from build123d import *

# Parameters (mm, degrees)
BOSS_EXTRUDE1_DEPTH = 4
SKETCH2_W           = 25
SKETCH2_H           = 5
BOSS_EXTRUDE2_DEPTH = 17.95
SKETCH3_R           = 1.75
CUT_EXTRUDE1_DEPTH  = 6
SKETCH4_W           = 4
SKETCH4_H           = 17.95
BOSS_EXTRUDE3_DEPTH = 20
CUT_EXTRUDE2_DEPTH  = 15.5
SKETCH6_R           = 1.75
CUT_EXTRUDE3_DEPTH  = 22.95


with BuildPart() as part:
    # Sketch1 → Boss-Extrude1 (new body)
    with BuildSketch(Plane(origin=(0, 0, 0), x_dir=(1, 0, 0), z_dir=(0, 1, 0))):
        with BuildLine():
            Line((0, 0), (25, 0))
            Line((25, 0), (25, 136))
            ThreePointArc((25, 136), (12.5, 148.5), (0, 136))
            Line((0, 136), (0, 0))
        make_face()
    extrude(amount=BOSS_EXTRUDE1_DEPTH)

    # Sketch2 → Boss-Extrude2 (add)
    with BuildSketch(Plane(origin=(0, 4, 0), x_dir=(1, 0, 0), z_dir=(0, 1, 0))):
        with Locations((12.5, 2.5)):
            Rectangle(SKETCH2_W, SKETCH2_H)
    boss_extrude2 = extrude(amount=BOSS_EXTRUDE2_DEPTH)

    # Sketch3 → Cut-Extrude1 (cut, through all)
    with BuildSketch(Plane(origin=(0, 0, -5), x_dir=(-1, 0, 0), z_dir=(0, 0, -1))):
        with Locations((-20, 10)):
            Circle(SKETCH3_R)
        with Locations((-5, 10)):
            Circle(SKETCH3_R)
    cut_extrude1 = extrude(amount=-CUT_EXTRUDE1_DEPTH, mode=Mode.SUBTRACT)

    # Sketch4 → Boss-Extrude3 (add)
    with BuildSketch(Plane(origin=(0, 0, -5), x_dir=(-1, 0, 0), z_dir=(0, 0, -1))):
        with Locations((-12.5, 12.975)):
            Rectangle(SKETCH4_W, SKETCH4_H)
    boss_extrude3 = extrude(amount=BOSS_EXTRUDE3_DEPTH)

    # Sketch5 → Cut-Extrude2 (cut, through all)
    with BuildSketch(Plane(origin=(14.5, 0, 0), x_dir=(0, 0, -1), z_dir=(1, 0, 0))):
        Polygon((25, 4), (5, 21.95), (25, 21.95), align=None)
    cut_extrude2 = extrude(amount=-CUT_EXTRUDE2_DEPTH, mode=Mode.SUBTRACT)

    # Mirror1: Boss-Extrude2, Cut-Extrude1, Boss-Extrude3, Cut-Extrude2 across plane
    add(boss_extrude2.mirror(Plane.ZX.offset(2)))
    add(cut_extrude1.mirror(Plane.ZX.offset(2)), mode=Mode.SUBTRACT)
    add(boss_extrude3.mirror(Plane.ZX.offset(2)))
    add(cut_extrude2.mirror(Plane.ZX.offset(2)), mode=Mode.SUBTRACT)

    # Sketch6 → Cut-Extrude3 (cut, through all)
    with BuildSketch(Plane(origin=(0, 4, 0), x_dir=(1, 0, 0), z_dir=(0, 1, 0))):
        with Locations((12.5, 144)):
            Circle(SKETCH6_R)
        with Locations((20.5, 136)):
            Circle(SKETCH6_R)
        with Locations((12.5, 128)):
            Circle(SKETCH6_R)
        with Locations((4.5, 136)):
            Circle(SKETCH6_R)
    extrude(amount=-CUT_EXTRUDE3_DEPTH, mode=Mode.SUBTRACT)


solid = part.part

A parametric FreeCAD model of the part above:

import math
import FreeCAD as App
import Part
import Sketcher

V = App.Vector
Q = App.Units.Quantity


def add_polygon(sketch, points):
    """Adds a closed chain of lines whose ends are joined by coincident constraints."""
    first, n = sketch.GeometryCount, len(points)
    for a, b in zip(points, points[1:] + points[:1]):
        sketch.addGeometry(Part.LineSegment(App.Vector(*a, 0), App.Vector(*b, 0)), False)
    for i in range(n):
        sketch.addConstraint(Sketcher.Constraint("Coincident", first + i, 2, first + (i + 1) % n, 1))

doc = App.newDocument("Part")
body = doc.addObject("PartDesign::Body", "Body")

# Sketch on XZ plane
sketch1 = body.newObject("Sketcher::SketchObject", "Sketch")
sketch1.AttachmentSupport = (doc.getObject("XZ_Plane"), [""])
sketch1.MapMode = "FlatFace"
sketch1.addGeometry([
    Part.LineSegment(V(0, 0, 0), V(25, 0, 0)),
    Part.LineSegment(V(25, 0, 0), V(25, -136, 0)),
    Part.ArcOfCircle(Part.Circle(V(12, -136, 0), V(0, 0, 1), 12), math.radians(180), math.radians(360)),
    Part.LineSegment(V(0, -136, 0), V(0, 0, 0)),
], False)
sketch1.addConstraint([
    Sketcher.Constraint("Coincident", 0, 2, 1, 1),
    Sketcher.Constraint("Tangent", 1, 2, 2, 2),
    Sketcher.Constraint("Tangent", 2, 1, 3, 1),
    Sketcher.Constraint("Coincident", 3, 2, 0, 1),
    Sketcher.Constraint("Horizontal", 0),
    Sketcher.Constraint("Vertical", 1),
    Sketcher.Constraint("Vertical", 3),
    Sketcher.Constraint("Coincident", 3, 2, -1, 1),
    Sketcher.Constraint("Radius", 2, Q("12.5 mm")),
    Sketcher.Constraint("DistanceY", 1, 2, 1, 1, Q("136 mm")),
])
pad1 = body.newObject("PartDesign::Pad", "Pad")
pad1.Profile = sketch1
pad1.Length = 4
pad1.Reversed = True

# Sketch on XZ plane
sketch2 = body.newObject("Sketcher::SketchObject", "Sketch001")
sketch2.AttachmentSupport = (doc.getObject("XZ_Plane"), [""])
sketch2.MapMode = "FlatFace"
sketch2.AttachmentOffset = App.Placement(V(0, 0, -4), App.Rotation())
add_polygon(sketch2, [(0, -5), (0, 0), (25, 0), (25, -5)])  # lines 0-3
sketch2.addConstraint([
    Sketcher.Constraint("Vertical", 0),
    Sketcher.Constraint("Horizontal", 1),
    Sketcher.Constraint("Vertical", 2),
    Sketcher.Constraint("Horizontal", 3),
    Sketcher.Constraint("Coincident", 0, 2, -1, 1),
    Sketcher.Constraint("DistanceX", 1, 1, 1, 2, Q("25 mm")),
    Sketcher.Constraint("DistanceY", 0, 1, 0, 2, Q("5 mm")),
])
pad2 = body.newObject("PartDesign::Pad", "Pad001")
pad2.Profile = sketch2
pad2.Length = 17.95
pad2.Reversed = True

# Sketch on XY plane
sketch3 = body.newObject("Sketcher::SketchObject", "Sketch002")
sketch3.AttachmentSupport = (doc.getObject("XY_Plane"), [""])
sketch3.MapMode = "FlatFace"
sketch3.AttachmentOffset = App.Placement(V(0, 0, -5), App.Rotation())
sketch3.addGeometry([
    Part.Circle(V(20, 10, 0), V(0, 0, 1), 1.8),
    Part.Circle(V(5, 10, 0), V(0, 0, 1), 1.8),
], False)
sketch3.addConstraint([
    Sketcher.Constraint("Equal", 0, 1),
    Sketcher.Constraint("Horizontal", 0, 3, 1, 3),
    Sketcher.Constraint("Diameter", 0, Q("3.5 mm")),
    Sketcher.Constraint("DistanceX", -1, 1, 0, 3, Q("20 mm")),
    Sketcher.Constraint("DistanceY", -1, 1, 0, 3, Q("10 mm")),
    Sketcher.Constraint("DistanceX", -1, 1, 1, 3, Q("5 mm")),
])
pocket1 = body.newObject("PartDesign::Pocket", "Pocket")
pocket1.Profile = sketch3
pocket1.Type = "ThroughAll"
pocket1.Reversed = True

# Sketch on XY plane
sketch4 = body.newObject("Sketcher::SketchObject", "Sketch003")
sketch4.AttachmentSupport = (doc.getObject("XY_Plane"), [""])
sketch4.MapMode = "FlatFace"
sketch4.AttachmentOffset = App.Placement(V(0, 0, -5), App.Rotation())
add_polygon(sketch4, [(14.5, 21.9), (14.5, 4), (10.5, 4), (10.5, 21.9)])  # lines 0-3
sketch4.addConstraint([
    Sketcher.Constraint("Vertical", 0),
    Sketcher.Constraint("Horizontal", 1),
    Sketcher.Constraint("Vertical", 2),
    Sketcher.Constraint("Horizontal", 3),
    Sketcher.Constraint("DistanceX", 1, 2, 1, 1, Q("4 mm")),
    Sketcher.Constraint("DistanceY", -1, 1, 0, 2, Q("4 mm")),
    Sketcher.Constraint("DistanceY", 0, 2, 0, 1, Q("17.95 mm")),
    Sketcher.Constraint("DistanceX", -1, 1, 0, 2, Q("14.5 mm")),
])
pad3 = body.newObject("PartDesign::Pad", "Pad002")
pad3.Profile = sketch4
pad3.Length = 20
pad3.Reversed = True

# Sketch on YZ plane
sketch5 = body.newObject("Sketcher::SketchObject", "Sketch004")
sketch5.AttachmentSupport = (doc.getObject("YZ_Plane"), [""])
sketch5.MapMode = "FlatFace"
sketch5.AttachmentOffset = App.Placement(V(0, 0, 14.5), App.Rotation())
add_polygon(sketch5, [(22, -5), (4, -25), (22, -25)])  # lines 0-2
sketch5.addConstraint([
    Sketcher.Constraint("Horizontal", 1),
    Sketcher.Constraint("Vertical", 2),
    Sketcher.Constraint("DistanceY", 2, 1, 2, 2, Q("20 mm")),
    Sketcher.Constraint("DistanceX", -1, 1, 0, 2, Q("4 mm")),
    Sketcher.Constraint("DistanceY", 0, 2, -1, 1, Q("25 mm")),
    Sketcher.Constraint("DistanceX", 1, 1, 1, 2, Q("17.95 mm")),
])
pocket2 = body.newObject("PartDesign::Pocket", "Pocket001")
pocket2.Profile = sketch5
pocket2.Type = "ThroughAll"
doc.recompute()

datumplane = body.newObject("PartDesign::Plane", "DatumPlane")
datumplane.AttachmentSupport = (doc.getObject("XZ_Plane"), [""])
datumplane.MapMode = "FlatFace"
datumplane.AttachmentOffset = App.Placement(V(0, 0, -2), App.Rotation())
mirrored = body.newObject("PartDesign::Mirrored", "Mirrored")
mirrored.Originals = [pad2, pocket1, pad3, pocket2]
mirrored.MirrorPlane = (datumplane, [""])
body.Tip = mirrored

# Sketch on XZ plane
sketch6 = body.newObject("Sketcher::SketchObject", "Sketch005")
sketch6.AttachmentSupport = (doc.getObject("XZ_Plane"), [""])
sketch6.MapMode = "FlatFace"
sketch6.AttachmentOffset = App.Placement(V(0, 0, -4), App.Rotation())
sketch6.addGeometry([
    Part.Circle(V(12.5, -144, 0), V(0, 0, 1), 1.8),
    Part.Circle(V(20.5, -136, 0), V(0, 0, 1), 1.8),
    Part.Circle(V(12.5, -128, 0), V(0, 0, 1), 1.8),
    Part.Circle(V(4.5, -136, 0), V(0, 0, 1), 1.8),
], False)
sketch6.addConstraint([
    Sketcher.Constraint("Equal", 0, 1),
    Sketcher.Constraint("Equal", 1, 2),
    Sketcher.Constraint("Equal", 2, 3),
    Sketcher.Constraint("Horizontal", 1, 3, 3, 3),
    Sketcher.Constraint("Vertical", 0, 3, 2, 3),
    Sketcher.Constraint("Diameter", 0, Q("3.5 mm")),
    Sketcher.Constraint("DistanceY", 0, 3, -1, 1, Q("144 mm")),
    Sketcher.Constraint("DistanceY", 1, 3, -1, 1, Q("136 mm")),
    Sketcher.Constraint("DistanceY", 2, 3, -1, 1, Q("128 mm")),
    Sketcher.Constraint("DistanceX", 0, 3, 1, 3, Q("8 mm")),
    Sketcher.Constraint("DistanceX", 3, 3, 0, 3, Q("8 mm")),
    Sketcher.Constraint("DistanceX", -1, 1, 0, 3, Q("12.5 mm")),
])
pocket3 = body.newObject("PartDesign::Pocket", "Pocket002")
pocket3.Profile = sketch6
pocket3.Type = "ThroughAll"
pocket3.Reversed = True

doc.recompute()
